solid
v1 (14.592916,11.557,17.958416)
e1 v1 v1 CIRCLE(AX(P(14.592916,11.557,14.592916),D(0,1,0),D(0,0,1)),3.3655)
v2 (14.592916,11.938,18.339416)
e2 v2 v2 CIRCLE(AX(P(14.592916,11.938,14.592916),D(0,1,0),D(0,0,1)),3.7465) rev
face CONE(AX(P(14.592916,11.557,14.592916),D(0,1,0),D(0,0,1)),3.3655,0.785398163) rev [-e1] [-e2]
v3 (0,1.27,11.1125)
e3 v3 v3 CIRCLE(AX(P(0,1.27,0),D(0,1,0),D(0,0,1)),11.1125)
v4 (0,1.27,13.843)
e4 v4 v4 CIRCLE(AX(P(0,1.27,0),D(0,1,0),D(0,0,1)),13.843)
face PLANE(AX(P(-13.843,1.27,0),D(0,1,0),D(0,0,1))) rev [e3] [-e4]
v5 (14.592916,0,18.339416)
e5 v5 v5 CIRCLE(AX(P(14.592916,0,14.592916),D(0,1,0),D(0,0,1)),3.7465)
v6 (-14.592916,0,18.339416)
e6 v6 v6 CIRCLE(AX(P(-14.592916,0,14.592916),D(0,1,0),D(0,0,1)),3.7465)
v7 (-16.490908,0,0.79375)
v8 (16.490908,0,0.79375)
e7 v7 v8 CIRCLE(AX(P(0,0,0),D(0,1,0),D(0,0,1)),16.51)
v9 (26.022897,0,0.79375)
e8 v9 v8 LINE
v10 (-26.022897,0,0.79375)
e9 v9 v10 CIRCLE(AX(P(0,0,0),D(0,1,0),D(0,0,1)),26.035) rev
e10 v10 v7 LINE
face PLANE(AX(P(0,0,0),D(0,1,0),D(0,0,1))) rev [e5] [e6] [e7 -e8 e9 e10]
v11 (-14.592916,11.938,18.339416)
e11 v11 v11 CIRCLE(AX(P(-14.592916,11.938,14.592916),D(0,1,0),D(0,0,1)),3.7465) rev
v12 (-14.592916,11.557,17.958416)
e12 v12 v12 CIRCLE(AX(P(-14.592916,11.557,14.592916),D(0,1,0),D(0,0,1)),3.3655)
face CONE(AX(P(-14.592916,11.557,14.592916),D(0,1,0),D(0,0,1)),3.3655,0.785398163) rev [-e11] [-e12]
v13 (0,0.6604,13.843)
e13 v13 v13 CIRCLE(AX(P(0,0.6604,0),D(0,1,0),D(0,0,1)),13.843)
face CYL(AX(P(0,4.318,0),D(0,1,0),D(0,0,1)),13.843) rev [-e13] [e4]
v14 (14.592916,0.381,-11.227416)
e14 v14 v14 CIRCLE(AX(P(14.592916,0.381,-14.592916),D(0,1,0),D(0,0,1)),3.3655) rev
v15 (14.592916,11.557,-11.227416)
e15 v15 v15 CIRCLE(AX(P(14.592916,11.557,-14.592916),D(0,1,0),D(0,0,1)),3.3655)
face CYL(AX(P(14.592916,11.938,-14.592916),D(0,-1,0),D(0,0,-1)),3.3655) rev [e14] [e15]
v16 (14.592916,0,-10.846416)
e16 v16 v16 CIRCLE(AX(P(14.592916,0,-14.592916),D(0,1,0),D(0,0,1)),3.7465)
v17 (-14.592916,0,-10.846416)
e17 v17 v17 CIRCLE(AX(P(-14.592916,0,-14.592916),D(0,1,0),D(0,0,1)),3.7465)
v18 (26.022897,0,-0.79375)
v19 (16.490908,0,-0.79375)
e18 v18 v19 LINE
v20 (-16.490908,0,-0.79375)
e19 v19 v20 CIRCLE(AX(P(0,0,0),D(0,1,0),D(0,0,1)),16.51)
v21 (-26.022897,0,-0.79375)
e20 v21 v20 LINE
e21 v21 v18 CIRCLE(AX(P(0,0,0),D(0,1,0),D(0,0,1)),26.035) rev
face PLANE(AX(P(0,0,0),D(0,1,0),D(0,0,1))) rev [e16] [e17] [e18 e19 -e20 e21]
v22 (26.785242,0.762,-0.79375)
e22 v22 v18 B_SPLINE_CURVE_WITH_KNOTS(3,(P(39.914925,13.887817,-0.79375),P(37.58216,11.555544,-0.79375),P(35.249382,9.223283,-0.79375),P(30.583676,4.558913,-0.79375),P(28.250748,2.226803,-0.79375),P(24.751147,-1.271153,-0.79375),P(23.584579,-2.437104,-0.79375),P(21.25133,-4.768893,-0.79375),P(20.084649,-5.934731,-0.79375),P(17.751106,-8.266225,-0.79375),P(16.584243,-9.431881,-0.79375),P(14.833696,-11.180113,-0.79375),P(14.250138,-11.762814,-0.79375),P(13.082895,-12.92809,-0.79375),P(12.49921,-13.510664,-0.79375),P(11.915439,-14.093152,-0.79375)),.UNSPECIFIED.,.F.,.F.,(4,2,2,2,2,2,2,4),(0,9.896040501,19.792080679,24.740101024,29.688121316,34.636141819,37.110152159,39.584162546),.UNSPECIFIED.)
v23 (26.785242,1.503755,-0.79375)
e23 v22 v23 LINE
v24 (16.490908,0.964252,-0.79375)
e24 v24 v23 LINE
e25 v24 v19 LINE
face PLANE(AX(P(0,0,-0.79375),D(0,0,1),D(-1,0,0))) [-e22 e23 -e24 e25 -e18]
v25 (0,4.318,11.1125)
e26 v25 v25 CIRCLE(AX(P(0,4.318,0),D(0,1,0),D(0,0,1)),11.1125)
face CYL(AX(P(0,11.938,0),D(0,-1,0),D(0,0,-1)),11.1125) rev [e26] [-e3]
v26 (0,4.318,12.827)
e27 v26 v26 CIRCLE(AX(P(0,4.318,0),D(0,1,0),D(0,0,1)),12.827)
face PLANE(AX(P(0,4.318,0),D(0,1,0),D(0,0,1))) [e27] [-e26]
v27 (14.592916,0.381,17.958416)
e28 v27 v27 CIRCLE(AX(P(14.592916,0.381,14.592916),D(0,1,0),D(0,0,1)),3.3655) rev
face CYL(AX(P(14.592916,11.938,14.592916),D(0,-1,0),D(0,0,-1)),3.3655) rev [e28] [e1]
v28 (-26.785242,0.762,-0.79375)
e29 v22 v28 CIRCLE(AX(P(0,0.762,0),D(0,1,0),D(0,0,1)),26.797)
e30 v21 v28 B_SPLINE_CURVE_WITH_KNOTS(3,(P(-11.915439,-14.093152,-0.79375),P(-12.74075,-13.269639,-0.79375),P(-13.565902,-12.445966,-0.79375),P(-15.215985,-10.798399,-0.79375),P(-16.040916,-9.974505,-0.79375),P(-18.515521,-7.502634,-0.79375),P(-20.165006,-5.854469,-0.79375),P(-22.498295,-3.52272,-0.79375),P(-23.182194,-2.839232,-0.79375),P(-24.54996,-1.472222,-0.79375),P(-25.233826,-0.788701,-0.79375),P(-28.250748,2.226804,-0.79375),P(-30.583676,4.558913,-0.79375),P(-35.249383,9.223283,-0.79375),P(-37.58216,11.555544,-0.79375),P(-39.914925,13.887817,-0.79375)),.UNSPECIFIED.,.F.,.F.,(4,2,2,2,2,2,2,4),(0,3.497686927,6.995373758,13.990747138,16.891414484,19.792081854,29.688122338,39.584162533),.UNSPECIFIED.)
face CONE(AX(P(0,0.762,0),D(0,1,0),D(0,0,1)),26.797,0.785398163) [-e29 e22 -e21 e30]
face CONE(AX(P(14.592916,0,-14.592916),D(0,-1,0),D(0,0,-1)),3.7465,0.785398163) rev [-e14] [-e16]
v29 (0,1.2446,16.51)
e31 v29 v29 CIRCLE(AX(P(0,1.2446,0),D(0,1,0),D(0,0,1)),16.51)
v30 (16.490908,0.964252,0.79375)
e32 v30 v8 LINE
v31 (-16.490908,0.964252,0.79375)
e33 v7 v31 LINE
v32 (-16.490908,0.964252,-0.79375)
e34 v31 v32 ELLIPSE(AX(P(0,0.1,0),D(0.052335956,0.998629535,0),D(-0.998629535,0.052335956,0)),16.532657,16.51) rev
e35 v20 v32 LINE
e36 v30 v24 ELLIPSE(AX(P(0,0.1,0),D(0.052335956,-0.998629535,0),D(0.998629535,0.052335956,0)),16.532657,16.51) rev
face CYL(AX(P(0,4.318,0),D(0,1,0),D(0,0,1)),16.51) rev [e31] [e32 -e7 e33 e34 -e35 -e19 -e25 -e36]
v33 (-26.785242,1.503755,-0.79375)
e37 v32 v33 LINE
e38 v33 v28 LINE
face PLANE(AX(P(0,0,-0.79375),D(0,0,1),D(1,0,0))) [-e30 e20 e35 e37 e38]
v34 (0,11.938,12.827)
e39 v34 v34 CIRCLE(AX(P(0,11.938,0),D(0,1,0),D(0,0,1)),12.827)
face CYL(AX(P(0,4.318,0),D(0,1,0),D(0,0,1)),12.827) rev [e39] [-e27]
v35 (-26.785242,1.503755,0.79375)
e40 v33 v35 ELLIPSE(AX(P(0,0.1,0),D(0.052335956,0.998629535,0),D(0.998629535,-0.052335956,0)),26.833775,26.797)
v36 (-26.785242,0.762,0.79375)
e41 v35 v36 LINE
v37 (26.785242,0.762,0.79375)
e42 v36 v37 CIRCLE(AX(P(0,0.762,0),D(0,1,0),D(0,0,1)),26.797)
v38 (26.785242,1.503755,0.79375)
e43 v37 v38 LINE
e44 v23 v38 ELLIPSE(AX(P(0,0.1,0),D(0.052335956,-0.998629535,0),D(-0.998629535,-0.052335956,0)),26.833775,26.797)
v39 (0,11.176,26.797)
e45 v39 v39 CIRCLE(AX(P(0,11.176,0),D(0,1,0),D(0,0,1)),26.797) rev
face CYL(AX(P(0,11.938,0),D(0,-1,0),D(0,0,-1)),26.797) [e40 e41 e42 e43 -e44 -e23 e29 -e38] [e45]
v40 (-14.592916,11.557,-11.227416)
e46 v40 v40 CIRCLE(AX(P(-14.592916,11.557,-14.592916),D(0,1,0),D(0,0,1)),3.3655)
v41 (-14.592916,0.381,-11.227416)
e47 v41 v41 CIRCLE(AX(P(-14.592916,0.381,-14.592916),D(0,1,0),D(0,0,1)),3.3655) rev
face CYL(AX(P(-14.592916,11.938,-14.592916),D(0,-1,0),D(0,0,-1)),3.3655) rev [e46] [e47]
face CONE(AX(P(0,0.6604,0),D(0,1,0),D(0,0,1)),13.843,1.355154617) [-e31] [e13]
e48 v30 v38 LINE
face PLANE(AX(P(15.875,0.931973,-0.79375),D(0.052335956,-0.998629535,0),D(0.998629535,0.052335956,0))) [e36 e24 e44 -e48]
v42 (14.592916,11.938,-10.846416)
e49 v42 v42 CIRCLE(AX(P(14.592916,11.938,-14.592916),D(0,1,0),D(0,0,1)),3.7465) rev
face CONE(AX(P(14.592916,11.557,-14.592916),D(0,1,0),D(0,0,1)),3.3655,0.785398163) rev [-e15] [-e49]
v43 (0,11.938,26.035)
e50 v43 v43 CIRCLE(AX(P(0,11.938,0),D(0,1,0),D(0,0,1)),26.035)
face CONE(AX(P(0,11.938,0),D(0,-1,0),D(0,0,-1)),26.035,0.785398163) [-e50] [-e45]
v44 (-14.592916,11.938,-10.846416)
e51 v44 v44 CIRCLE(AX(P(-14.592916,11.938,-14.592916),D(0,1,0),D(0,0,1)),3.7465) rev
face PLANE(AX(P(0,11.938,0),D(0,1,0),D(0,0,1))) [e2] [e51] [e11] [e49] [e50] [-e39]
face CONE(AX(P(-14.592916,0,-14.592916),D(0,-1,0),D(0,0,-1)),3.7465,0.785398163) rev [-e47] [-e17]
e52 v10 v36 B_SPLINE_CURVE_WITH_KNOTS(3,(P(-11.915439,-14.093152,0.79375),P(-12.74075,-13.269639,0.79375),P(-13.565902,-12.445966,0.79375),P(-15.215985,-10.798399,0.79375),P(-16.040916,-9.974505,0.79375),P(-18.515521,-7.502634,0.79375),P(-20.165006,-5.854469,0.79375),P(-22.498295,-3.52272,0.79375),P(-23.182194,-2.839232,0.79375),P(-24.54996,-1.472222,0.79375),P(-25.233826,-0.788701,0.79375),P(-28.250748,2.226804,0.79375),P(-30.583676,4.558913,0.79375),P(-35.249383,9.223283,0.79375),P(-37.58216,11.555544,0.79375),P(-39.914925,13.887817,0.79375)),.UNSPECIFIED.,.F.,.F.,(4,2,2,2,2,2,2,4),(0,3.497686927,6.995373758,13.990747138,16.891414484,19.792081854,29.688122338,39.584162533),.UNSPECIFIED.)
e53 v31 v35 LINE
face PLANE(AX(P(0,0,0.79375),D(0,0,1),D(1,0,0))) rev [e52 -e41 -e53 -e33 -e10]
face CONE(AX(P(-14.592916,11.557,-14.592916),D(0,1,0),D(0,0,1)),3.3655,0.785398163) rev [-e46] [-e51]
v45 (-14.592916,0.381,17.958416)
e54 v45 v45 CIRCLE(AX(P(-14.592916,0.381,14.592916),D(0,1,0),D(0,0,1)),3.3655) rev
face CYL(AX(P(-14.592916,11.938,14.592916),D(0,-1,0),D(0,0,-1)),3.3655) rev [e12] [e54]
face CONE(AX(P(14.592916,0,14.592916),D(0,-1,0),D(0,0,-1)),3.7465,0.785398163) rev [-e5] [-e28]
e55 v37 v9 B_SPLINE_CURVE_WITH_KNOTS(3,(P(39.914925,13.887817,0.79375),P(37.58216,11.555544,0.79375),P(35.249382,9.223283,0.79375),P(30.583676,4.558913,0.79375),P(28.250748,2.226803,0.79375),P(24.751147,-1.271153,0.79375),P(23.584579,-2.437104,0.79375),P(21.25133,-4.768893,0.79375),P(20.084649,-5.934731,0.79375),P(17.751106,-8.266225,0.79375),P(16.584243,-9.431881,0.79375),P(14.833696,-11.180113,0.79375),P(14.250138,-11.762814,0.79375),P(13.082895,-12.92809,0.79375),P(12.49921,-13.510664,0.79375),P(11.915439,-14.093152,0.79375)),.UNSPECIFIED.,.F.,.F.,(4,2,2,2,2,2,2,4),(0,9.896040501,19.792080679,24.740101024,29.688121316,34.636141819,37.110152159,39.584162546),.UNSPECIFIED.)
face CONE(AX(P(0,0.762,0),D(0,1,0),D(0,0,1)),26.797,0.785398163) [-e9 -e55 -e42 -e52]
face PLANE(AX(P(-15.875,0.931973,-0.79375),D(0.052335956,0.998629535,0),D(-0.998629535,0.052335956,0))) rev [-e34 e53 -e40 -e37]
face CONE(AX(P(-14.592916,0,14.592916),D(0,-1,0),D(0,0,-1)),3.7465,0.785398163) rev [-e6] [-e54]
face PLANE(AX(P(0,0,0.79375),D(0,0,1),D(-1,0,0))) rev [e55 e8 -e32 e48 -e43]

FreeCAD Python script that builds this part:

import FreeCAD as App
import Part
import Sketcher

V = App.Vector
Q = App.Units.Quantity


def edges_at(feature, points):
    """Names of the edges that pass closest to the given points."""
    edges = feature.Shape.Edges
    near = lambda p: min(range(len(edges)), key=lambda i: edges[i].distToShape(Part.Vertex(*p))[0])
    return sorted({f"Edge{near(p) + 1}" for p in points})


def add_polygon(sketch, points):
    """Adds a closed chain of lines whose ends are joined by coincident constraints."""
    first, n = sketch.GeometryCount, len(points)
    for a, b in zip(points, points[1:] + points[:1]):
        sketch.addGeometry(Part.LineSegment(App.Vector(*a, 0), App.Vector(*b, 0)), False)
    for i in range(n):
        sketch.addConstraint(Sketcher.Constraint("Coincident", first + i, 2, first + (i + 1) % n, 1))

doc = App.newDocument("Part")
body = doc.addObject("PartDesign::Body", "Body")

# Sketch on XZ plane
sketch1 = body.newObject("Sketcher::SketchObject", "Sketch")
sketch1.AttachmentSupport = (doc.getObject("XZ_Plane"), [""])
sketch1.MapMode = "FlatFace"
sketch1.addGeometry(Part.Circle(V(0, 0, 0), V(0, 0, 1), 27), False)
sketch1.addGeometry(Part.Circle(V(0, 0, 0), V(0, 0, 1), 11), False)
sketch1.addConstraint(Sketcher.Constraint("Coincident", 0, 3, -1, 1))
sketch1.addConstraint(Sketcher.Constraint("Coincident", 1, 3, -1, 1))
sketch1.addConstraint(Sketcher.Constraint("Diameter", 0, Q("2.11 in")))
sketch1.addConstraint(Sketcher.Constraint("Diameter", 1, Q("0.875 in")))
pad1 = body.newObject("PartDesign::Pad", "Pad")
pad1.Profile = sketch1
pad1.Length = Q("0.47 in")
pad1.Reversed = True

# Sketch on XZ plane
sketch2 = body.newObject("Sketcher::SketchObject", "Sketch001")
sketch2.AttachmentSupport = (doc.getObject("XZ_Plane"), [""])
sketch2.MapMode = "FlatFace"
sketch2.AttachmentOffset = App.Placement(V(0, 0, -0.47 * 25.4), App.Rotation())
sketch2.addGeometry(Part.Circle(V(0, 0, 0), V(0, 0, 1), 13), False)
sketch2.addConstraint(Sketcher.Constraint("Coincident", 0, 3, -1, 1))
sketch2.addConstraint(Sketcher.Constraint("Diameter", 0, Q("1.01 in")))
pocket1 = body.newObject("PartDesign::Pocket", "Pocket")
pocket1.Profile = sketch2
pocket1.Length = Q("0.3 in")
pocket1.Reversed = True
doc.recompute()

chamfer = body.newObject("PartDesign::Chamfer", "Chamfer")
chamfer.Base = (pocket1, edges_at(pocket1, [(-26.797, 0, 0), (-26.797, 11.938, 0)]))
chamfer.Size = Q("0.03 in")

# Sketch on XY plane
sketch3 = body.newObject("Sketcher::SketchObject", "Sketch002")
sketch3.AttachmentSupport = (doc.getObject("XY_Plane"), [""])
sketch3.MapMode = "FlatFace"
add_polygon(sketch3, [(-16.5, 1.2), (-16.5, 0), (0, 0), (0, 1.3), (-13.8, 1.3), (-13.8, 0.7)])  # lines 0-5
sketch3.addConstraint(Sketcher.Constraint("Vertical", 0))
sketch3.addConstraint(Sketcher.Constraint("Horizontal", 1))
sketch3.addConstraint(Sketcher.Constraint("Vertical", 2))
sketch3.addConstraint(Sketcher.Constraint("Horizontal", 3))
sketch3.addConstraint(Sketcher.Constraint("Vertical", 4))
sketch3.addConstraint(Sketcher.Constraint("Coincident", 1, 2, -1, 1))
sketch3.addConstraint(Sketcher.Constraint("DistanceX", 1, 1, 1, 2, Q("0.65 in")))
sketch3.addConstraint(Sketcher.Constraint("DistanceY", 2, 1, 2, 2, Q("0.05 in")))
sketch3.addConstraint(Sketcher.Constraint("DistanceX", 3, 2, 3, 1, Q("0.545 in")))
sketch3.addConstraint(Sketcher.Constraint("DistanceY", 0, 2, 0, 1, Q("0.049 in")))
sketch3.addConstraint(Sketcher.Constraint("DistanceY", 4, 2, 4, 1, Q("0.024 in")))
groove = body.newObject("PartDesign::Groove", "Groove")
groove.Profile = sketch3
groove.ReferenceAxis = (sketch3, ["V_Axis"])
groove.Angle = 360

# Sketch on XZ plane
sketch4 = body.newObject("Sketcher::SketchObject", "Sketch003")
sketch4.AttachmentSupport = (doc.getObject("XZ_Plane"), [""])
sketch4.MapMode = "FlatFace"
sketch4.addGeometry(Part.Circle(V(14.6, -14.6, 0), V(0, 0, 1), 3.4), False)
sketch4.addConstraint(Sketcher.Constraint("Diameter", 0, Q("0.265 in")))
sketch4.addConstraint(Sketcher.Constraint("DistanceX", -1, 1, 0, 3, Q("14.592916 mm")))
sketch4.addConstraint(Sketcher.Constraint("DistanceY", 0, 3, -1, 1, Q("14.592916 mm")))
pocket2 = body.newObject("PartDesign::Pocket", "Pocket001")
pocket2.Profile = sketch4
pocket2.Type = "ThroughAll"
doc.recompute()

chamfer2 = body.newObject("PartDesign::Chamfer", "Chamfer001")
chamfer2.Base = (pocket2, edges_at(pocket2, [(11.227, 0, -14.593), (11.227, 11.938, -14.593)]))
chamfer2.Size = Q("0.015 in")
doc.recompute()

polarpattern = body.newObject("PartDesign::PolarPattern", "PolarPattern")
polarpattern.Originals = [pocket2]
polarpattern.Axis = (doc.getObject("Y_Axis"), [""])
polarpattern.Angle = 360
polarpattern.Occurrences = 4
body.Tip = polarpattern
doc.recompute()

chamfer3 = body.newObject("PartDesign::Chamfer", "Chamfer002")
chamfer3.Base = (polarpattern, edges_at(polarpattern, [
    (-14.593, 0, -11.227),
    (-14.593, 11.938, -11.227),
    (-11.227, 0, 14.593),
    (-11.227, 11.938, 14.593),
    (14.593, 0, 11.227),
    (14.593, 11.938, 11.227),
]))
chamfer3.Size = Q("0.015 in")

# Sketch on XY plane
sketch5 = body.newObject("Sketcher::SketchObject", "Sketch004")
sketch5.AttachmentSupport = (doc.getObject("XY_Plane"), [""])
sketch5.MapMode = "FlatFace"
add_polygon(sketch5, [(-15.9, 0.9), (-28.6, 1.6), (-28.6, 0), (-15.9, 0)])  # lines 0-3
sketch5.addConstraint(Sketcher.Constraint("Vertical", 1))
sketch5.addConstraint(Sketcher.Constraint("Horizontal", 2))
sketch5.addConstraint(Sketcher.Constraint("Vertical", 3))
sketch5.addConstraint(Sketcher.Constraint("PointOnObject", 1, 2, -1))
sketch5.addConstraint(Sketcher.Constraint("DistanceX", 2, 1, 2, 2, Q("0.5 in")))
sketch5.addConstraint(Sketcher.Constraint("Angle", 0, Q("177 deg")))
sketch5.addConstraint(Sketcher.Constraint("DistanceX", 0, 2, -1, 1, Q("1.125 in")))
sketch5.addConstraint(Sketcher.Constraint("DistanceY", 1, 2, 1, 1, Q("1.597552 mm")))
pocket3 = body.newObject("PartDesign::Pocket", "Pocket002")
pocket3.Profile = sketch5
pocket3.Length = Q("0.0625 in")
pocket3.Midplane = True
doc.recompute()

mirrored = body.newObject("PartDesign::Mirrored", "Mirrored")
mirrored.Originals = [pocket3]
mirrored.MirrorPlane = (doc.getObject("YZ_Plane"), [""])
body.Tip = mirrored

doc.recompute()
